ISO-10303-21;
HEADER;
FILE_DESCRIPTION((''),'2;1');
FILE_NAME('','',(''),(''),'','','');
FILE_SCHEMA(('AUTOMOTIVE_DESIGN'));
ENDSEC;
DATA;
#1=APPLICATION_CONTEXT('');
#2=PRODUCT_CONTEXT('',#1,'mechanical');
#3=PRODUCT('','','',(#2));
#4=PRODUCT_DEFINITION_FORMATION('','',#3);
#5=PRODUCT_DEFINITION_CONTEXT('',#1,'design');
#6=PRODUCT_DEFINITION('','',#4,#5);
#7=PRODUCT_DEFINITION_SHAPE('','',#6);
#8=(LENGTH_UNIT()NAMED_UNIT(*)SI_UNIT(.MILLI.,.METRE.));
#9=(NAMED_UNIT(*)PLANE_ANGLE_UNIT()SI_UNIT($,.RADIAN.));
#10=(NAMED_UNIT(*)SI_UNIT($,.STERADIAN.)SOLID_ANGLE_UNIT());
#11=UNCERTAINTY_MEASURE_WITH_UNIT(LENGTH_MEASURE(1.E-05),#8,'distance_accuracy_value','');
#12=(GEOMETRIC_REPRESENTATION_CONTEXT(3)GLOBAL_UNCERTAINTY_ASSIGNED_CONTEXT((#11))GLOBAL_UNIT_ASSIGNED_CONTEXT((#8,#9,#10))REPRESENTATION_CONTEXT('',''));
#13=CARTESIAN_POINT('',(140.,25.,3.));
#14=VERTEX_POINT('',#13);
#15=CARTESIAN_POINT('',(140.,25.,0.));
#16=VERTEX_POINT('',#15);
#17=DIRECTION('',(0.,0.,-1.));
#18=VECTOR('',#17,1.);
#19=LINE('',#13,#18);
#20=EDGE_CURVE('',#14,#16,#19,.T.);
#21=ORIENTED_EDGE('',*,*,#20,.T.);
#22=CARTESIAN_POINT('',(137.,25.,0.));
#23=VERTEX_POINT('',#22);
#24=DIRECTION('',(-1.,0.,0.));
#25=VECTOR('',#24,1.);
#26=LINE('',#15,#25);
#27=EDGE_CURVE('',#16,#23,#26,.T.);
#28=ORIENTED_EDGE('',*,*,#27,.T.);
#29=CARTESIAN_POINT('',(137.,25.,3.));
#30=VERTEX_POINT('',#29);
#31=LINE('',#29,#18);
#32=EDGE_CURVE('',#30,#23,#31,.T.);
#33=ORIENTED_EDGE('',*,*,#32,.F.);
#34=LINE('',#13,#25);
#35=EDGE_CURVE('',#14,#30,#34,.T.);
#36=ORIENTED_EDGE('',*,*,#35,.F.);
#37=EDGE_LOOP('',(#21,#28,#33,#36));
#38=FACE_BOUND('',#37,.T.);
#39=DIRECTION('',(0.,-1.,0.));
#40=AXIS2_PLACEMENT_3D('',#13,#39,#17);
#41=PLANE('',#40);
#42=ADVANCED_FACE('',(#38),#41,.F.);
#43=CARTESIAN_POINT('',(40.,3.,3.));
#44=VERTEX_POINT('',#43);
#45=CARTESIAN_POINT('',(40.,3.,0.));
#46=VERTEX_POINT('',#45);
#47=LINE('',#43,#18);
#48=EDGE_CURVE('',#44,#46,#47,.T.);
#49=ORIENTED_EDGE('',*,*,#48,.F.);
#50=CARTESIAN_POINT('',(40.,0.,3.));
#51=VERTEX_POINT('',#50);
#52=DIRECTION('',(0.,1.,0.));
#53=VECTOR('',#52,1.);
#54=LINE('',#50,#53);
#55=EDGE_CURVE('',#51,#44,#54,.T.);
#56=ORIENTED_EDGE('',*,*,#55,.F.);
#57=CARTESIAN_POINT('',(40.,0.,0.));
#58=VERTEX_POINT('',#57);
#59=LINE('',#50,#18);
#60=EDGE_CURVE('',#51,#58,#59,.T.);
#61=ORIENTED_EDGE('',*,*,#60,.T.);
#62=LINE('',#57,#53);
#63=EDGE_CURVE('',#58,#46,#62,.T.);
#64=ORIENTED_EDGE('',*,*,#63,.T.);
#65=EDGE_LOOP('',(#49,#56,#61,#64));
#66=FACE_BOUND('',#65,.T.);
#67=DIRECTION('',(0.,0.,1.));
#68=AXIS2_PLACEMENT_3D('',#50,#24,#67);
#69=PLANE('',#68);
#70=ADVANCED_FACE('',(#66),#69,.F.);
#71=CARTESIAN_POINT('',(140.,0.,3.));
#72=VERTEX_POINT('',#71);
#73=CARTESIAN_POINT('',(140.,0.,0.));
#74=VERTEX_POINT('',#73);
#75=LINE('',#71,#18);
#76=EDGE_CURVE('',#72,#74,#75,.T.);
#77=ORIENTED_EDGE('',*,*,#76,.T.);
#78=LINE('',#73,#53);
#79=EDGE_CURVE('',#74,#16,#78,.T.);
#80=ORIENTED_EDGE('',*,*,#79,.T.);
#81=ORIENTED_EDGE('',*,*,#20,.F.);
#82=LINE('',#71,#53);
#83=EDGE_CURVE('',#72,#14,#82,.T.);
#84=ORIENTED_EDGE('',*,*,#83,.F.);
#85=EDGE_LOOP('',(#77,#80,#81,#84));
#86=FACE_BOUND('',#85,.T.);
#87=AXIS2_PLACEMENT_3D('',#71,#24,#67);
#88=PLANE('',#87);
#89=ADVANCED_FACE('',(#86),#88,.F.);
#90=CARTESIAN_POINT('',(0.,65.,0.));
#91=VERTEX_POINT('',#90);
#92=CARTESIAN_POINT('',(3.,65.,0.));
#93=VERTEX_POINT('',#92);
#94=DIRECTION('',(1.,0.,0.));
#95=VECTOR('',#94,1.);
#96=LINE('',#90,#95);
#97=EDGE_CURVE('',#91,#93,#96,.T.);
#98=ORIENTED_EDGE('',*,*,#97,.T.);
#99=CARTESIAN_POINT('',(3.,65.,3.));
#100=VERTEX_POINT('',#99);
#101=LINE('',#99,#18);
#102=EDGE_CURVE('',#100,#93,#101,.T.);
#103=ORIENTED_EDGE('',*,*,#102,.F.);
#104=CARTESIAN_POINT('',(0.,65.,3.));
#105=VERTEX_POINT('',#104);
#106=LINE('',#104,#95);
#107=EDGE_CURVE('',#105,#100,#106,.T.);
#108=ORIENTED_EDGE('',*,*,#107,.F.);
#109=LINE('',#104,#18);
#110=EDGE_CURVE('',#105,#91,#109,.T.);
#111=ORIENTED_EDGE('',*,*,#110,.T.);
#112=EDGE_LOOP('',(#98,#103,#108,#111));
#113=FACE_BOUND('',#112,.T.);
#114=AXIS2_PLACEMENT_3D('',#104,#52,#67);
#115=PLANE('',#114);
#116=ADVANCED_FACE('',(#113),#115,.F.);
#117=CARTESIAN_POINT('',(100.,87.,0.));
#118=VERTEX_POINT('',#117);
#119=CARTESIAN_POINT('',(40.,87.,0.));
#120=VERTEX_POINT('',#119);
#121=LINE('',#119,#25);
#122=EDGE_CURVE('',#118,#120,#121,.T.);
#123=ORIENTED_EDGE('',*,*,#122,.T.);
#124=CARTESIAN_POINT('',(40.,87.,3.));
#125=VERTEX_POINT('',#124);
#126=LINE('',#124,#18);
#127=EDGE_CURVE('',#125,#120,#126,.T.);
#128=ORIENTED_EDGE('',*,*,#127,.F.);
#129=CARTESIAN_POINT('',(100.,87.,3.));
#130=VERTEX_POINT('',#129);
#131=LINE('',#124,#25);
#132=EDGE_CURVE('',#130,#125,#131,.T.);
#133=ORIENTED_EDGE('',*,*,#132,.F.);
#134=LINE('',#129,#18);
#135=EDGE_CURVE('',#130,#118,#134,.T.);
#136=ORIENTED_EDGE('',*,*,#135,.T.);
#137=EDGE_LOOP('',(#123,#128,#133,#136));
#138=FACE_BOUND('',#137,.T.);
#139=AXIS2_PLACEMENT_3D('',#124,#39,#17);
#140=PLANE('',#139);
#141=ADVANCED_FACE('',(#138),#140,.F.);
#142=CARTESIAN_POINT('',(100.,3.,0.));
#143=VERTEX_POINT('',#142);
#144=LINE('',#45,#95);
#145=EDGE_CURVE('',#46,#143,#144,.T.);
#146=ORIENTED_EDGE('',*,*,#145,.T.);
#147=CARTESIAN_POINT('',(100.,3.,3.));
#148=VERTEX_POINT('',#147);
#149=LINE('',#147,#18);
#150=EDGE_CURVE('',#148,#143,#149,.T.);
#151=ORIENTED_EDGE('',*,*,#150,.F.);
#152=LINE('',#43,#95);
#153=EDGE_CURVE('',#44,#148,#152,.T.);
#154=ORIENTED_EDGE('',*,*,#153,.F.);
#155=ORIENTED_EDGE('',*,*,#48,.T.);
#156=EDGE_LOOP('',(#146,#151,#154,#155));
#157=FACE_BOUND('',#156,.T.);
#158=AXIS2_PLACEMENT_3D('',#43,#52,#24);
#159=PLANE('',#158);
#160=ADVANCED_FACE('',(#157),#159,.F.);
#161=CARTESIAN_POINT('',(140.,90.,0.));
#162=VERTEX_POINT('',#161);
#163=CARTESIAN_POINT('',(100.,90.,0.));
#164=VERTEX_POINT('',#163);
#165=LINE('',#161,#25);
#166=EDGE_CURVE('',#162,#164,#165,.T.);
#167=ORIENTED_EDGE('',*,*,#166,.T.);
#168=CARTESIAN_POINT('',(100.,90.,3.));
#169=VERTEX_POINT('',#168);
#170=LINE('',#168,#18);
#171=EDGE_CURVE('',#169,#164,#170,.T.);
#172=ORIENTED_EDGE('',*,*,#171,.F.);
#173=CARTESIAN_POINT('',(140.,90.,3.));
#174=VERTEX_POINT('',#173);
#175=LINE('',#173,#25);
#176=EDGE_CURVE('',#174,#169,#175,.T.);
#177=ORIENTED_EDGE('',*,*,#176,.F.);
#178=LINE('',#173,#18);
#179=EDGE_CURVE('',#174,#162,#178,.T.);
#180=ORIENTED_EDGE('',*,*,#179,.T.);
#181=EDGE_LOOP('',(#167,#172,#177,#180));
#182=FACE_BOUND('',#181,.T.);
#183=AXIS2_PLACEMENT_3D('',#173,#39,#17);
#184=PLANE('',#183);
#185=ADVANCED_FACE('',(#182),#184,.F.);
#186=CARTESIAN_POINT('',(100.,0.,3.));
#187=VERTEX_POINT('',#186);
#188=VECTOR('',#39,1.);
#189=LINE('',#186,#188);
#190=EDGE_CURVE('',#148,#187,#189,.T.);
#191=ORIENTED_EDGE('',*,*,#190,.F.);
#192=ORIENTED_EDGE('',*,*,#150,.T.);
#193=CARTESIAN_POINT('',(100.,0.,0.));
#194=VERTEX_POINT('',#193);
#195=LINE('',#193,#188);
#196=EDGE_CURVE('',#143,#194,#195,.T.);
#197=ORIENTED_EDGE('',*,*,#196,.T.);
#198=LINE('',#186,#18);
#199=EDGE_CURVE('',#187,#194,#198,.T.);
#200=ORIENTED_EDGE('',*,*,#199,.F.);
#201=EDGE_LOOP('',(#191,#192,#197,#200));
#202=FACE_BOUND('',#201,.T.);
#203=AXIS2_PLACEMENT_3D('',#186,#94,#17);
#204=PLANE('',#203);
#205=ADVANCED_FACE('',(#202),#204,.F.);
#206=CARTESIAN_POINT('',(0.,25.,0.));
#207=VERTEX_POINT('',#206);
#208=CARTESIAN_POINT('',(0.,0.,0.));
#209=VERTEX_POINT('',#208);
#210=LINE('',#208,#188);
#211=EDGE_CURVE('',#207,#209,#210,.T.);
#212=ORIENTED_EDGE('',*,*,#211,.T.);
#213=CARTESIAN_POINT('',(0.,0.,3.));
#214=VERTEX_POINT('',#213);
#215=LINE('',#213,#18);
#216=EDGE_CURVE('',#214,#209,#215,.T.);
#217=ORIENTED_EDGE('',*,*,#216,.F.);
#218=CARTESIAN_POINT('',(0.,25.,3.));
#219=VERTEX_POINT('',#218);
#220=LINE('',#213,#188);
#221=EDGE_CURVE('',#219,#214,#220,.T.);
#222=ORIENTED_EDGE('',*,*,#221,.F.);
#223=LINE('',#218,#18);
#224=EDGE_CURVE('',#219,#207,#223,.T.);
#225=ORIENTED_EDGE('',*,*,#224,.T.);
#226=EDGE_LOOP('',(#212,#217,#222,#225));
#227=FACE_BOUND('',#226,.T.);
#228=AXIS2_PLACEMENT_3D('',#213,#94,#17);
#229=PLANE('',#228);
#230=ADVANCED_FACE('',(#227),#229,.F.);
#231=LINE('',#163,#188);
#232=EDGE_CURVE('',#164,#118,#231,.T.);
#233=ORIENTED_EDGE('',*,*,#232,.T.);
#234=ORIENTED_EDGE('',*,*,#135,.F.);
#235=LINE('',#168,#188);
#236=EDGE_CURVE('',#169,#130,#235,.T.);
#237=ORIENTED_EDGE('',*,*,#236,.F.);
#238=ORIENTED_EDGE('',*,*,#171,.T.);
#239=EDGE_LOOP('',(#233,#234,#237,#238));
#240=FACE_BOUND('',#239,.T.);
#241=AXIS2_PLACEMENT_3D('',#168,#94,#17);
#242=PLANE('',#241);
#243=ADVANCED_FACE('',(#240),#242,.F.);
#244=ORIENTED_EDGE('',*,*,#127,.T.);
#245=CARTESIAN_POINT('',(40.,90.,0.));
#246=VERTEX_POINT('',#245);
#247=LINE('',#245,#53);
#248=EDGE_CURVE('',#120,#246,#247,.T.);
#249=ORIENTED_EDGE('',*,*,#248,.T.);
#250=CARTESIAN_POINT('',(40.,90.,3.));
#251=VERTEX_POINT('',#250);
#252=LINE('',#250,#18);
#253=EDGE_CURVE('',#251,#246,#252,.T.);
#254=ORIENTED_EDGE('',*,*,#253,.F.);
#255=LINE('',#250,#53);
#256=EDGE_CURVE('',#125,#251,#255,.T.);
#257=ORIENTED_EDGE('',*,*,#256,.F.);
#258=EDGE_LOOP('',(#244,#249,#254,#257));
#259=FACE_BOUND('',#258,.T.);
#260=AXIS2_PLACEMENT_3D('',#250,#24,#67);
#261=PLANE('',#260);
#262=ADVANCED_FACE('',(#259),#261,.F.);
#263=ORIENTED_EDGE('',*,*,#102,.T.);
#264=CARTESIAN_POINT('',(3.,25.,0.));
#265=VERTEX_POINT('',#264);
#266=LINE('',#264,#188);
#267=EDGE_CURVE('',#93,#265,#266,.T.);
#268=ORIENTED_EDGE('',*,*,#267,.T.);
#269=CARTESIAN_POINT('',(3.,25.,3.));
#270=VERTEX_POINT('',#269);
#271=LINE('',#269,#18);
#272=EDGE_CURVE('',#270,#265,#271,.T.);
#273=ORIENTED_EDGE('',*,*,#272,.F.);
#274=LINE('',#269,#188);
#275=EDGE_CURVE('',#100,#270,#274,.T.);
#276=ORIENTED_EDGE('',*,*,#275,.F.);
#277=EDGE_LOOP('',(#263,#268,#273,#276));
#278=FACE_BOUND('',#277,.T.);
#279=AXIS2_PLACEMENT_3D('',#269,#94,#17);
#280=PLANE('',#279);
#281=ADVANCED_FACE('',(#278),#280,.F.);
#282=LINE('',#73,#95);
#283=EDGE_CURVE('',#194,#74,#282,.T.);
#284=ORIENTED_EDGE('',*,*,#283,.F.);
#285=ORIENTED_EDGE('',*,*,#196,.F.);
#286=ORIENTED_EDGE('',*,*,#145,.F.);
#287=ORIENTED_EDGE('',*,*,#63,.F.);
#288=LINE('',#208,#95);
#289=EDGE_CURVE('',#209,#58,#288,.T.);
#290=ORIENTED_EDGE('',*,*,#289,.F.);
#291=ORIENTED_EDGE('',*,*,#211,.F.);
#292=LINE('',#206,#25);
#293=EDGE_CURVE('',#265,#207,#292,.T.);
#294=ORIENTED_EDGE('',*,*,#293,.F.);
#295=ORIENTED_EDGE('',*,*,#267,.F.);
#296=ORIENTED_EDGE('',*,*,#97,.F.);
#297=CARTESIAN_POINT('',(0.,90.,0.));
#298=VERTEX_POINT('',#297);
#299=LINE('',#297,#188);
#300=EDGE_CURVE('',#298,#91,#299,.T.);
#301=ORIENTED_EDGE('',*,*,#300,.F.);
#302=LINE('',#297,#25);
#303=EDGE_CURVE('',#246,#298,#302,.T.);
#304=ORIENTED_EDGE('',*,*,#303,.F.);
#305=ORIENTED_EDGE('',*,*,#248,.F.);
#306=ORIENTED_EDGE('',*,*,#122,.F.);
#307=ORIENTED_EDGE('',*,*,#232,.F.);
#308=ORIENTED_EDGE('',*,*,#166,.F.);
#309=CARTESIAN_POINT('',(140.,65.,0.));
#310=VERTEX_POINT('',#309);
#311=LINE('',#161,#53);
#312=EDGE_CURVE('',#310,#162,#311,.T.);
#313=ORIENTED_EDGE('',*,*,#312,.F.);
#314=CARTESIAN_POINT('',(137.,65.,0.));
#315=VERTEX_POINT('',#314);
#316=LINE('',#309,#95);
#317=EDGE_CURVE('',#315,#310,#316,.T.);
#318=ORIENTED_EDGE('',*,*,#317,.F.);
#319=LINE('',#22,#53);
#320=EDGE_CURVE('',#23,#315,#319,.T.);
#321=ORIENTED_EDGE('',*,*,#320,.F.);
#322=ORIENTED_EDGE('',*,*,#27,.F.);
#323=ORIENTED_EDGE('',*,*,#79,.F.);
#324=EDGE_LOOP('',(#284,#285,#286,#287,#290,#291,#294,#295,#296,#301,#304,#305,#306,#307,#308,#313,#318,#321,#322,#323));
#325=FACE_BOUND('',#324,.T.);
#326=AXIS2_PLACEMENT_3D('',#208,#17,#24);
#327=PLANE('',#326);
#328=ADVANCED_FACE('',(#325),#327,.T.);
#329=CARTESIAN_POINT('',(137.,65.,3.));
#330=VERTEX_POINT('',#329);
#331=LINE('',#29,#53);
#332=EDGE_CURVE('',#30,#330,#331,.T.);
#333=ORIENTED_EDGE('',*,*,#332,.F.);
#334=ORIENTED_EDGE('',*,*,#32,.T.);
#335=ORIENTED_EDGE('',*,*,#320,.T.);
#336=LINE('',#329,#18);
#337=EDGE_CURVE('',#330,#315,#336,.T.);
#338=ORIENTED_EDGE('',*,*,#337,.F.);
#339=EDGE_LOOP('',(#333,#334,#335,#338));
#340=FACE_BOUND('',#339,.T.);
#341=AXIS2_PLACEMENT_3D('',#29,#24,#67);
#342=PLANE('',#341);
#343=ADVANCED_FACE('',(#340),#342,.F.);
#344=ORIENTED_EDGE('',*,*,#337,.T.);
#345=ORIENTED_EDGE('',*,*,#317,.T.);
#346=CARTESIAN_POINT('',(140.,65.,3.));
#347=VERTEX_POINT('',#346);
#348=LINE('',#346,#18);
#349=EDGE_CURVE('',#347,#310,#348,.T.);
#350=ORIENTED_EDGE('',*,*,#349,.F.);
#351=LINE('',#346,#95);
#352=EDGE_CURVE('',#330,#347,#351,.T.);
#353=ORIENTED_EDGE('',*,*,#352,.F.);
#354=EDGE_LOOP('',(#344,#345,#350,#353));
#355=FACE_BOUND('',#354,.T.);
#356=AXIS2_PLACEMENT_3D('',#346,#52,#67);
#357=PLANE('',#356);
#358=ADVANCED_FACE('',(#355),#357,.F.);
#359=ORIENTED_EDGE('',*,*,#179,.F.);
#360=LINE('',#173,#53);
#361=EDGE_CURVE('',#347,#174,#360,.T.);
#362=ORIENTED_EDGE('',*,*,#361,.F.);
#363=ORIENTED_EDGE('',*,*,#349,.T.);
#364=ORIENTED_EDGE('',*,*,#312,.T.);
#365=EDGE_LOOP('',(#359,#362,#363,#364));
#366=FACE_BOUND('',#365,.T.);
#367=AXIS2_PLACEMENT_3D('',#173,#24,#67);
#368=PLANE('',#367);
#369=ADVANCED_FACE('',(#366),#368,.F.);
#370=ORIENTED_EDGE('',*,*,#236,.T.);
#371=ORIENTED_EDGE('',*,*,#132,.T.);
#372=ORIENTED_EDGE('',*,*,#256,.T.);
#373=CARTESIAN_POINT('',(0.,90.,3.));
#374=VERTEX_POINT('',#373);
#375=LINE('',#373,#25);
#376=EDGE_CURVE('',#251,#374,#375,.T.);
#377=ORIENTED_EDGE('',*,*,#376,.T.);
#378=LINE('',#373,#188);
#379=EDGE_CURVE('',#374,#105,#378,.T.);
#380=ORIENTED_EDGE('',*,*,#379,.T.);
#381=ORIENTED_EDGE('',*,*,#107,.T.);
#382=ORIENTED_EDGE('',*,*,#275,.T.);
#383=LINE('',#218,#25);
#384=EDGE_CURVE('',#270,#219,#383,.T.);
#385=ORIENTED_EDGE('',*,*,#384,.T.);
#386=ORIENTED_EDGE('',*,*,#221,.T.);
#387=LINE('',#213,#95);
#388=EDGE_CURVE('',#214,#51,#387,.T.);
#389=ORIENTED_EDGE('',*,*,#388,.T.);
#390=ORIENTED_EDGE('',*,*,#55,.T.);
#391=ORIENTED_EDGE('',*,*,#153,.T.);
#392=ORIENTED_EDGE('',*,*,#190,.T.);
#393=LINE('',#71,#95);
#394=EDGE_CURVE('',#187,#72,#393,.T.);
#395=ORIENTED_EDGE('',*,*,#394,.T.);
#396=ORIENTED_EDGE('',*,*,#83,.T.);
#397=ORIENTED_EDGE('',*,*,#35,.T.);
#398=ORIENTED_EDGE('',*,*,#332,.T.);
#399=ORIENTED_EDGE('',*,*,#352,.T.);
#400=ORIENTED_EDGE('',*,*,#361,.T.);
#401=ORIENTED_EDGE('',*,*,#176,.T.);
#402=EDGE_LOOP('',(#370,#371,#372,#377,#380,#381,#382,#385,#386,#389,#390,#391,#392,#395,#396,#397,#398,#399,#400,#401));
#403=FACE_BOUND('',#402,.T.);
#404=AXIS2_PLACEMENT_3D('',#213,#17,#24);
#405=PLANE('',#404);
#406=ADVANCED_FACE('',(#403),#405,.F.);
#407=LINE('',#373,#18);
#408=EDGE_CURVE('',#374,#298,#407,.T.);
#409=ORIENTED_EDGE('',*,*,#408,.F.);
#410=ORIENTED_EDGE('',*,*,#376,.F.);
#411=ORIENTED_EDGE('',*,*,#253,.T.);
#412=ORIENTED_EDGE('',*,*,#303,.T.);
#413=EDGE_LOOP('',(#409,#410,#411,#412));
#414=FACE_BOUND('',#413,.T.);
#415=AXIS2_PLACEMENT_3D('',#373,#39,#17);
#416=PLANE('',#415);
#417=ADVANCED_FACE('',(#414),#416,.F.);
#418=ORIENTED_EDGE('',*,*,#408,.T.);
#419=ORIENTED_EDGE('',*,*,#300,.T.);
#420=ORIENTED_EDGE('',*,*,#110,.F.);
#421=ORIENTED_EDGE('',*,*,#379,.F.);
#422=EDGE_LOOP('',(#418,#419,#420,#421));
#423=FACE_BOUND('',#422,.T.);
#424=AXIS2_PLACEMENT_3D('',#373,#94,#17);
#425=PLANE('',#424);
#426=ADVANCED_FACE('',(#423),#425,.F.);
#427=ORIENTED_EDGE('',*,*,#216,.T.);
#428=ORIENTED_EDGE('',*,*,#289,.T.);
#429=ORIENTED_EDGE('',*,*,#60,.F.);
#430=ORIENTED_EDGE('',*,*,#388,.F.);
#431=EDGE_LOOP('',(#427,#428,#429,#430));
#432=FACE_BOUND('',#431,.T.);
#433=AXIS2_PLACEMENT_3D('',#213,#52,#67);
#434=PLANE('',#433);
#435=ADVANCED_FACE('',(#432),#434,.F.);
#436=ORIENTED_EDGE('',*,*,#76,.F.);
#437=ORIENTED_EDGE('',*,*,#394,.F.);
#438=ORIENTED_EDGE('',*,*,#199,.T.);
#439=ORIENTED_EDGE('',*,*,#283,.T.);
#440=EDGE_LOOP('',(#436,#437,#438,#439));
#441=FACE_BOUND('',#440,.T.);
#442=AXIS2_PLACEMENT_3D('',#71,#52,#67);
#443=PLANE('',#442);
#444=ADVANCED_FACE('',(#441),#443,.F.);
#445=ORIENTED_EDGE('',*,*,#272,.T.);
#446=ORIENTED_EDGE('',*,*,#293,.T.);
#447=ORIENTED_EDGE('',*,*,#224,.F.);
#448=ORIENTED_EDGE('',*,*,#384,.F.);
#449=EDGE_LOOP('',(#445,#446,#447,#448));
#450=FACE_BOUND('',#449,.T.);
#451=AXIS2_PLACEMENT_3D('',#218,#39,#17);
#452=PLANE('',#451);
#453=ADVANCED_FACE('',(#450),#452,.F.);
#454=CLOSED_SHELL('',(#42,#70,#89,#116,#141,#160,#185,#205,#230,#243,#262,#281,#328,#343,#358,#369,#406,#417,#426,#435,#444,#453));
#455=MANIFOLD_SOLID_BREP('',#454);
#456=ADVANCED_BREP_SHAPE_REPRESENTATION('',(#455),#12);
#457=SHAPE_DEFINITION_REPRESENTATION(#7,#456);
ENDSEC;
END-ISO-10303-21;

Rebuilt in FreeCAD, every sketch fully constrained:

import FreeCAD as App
import Part
import Sketcher
from FreeCAD import Vector


def add_polygon(sketch, points):
    """Adds a closed chain of lines whose ends are joined by coincident constraints."""
    first, n = sketch.GeometryCount, len(points)
    for a, b in zip(points, points[1:] + points[:1]):
        sketch.addGeometry(Part.LineSegment(App.Vector(*a, 0), App.Vector(*b, 0)), False)
    for i in range(n):
        sketch.addConstraint(Sketcher.Constraint("Coincident", first + i, 2, first + (i + 1) % n, 1))

doc = App.newDocument("Part")
body = doc.addObject("PartDesign::Body", "Body")

sketch1 = body.newObject("Sketcher::SketchObject", "Sketch")
sketch1.AttachmentSupport = (doc.getObject("XY_Plane"), [""])
sketch1.MapMode = "FlatFace"
add_polygon(sketch1, [(0, 0), (40, 0), (40, 3), (100, 3), (100, 0), (140, 0), (140, 25), (137, 25), (137, 65), (140, 65), (140, 90), (100, 90), (100, 87), (40, 87), (40, 90), (0, 90), (0, 65), (3, 65), (3, 25), (0, 25)])
sketch1.addConstraint([
    Sketcher.Constraint("Horizontal", 0),
    Sketcher.Constraint("Vertical", 1),
    Sketcher.Constraint("Horizontal", 2),
    Sketcher.Constraint("Vertical", 3),
    Sketcher.Constraint("Horizontal", 4),
    Sketcher.Constraint("Vertical", 5),
    Sketcher.Constraint("Horizontal", 6),
    Sketcher.Constraint("Vertical", 7),
    Sketcher.Constraint("Horizontal", 8),
    Sketcher.Constraint("Vertical", 9),
    Sketcher.Constraint("Horizontal", 10),
    Sketcher.Constraint("Vertical", 11),
    Sketcher.Constraint("Horizontal", 12),
    Sketcher.Constraint("Vertical", 13),
    Sketcher.Constraint("Horizontal", 14),
    Sketcher.Constraint("Vertical", 15),
    Sketcher.Constraint("Horizontal", 16),
    Sketcher.Constraint("Vertical", 17),
    Sketcher.Constraint("Horizontal", 18),
    Sketcher.Constraint("Vertical", 19),
    Sketcher.Constraint("Coincident", 19, 2, -1, 1),
    Sketcher.Constraint("PointOnObject", 3, 2, -1),
    Sketcher.Constraint("PointOnObject", 14, 2, -2),
    Sketcher.Constraint("Horizontal", 10, 2, 13, 2),
    Sketcher.Constraint("Horizontal", 8, 2, 15, 2),
    Sketcher.Constraint("Horizontal", 6, 2, 17, 2),
    Sketcher.Constraint("Vertical", 5, 2, 8, 2),
    Sketcher.Constraint("Vertical", 3, 2, 10, 2),
    Sketcher.Constraint("Vertical", 1, 2, 12, 2),
    Sketcher.Constraint("Equal", 0, 4),
    Sketcher.Constraint("Equal", 8, 16),
    Sketcher.Constraint("Equal", 18, 1),
    Sketcher.Constraint("Equal", 14, 7),
    Sketcher.Constraint("Equal", 5, 9),
    Sketcher.Constraint("Equal", 3, 11),
    Sketcher.Constraint("DistanceX", 0, 1, 0, 2, 40.0),
    Sketcher.Constraint("DistanceX", 2, 1, 2, 2, 60.0),
    Sketcher.Constraint("DistanceX", 6, 2, 6, 1, 3.0),
    Sketcher.Constraint("DistanceY", 5, 1, 5, 2, 25.0),
])
pad1 = body.newObject("PartDesign::Pad", "Pad")
pad1.Profile = sketch1
pad1.Length = 3

doc.recompute()
